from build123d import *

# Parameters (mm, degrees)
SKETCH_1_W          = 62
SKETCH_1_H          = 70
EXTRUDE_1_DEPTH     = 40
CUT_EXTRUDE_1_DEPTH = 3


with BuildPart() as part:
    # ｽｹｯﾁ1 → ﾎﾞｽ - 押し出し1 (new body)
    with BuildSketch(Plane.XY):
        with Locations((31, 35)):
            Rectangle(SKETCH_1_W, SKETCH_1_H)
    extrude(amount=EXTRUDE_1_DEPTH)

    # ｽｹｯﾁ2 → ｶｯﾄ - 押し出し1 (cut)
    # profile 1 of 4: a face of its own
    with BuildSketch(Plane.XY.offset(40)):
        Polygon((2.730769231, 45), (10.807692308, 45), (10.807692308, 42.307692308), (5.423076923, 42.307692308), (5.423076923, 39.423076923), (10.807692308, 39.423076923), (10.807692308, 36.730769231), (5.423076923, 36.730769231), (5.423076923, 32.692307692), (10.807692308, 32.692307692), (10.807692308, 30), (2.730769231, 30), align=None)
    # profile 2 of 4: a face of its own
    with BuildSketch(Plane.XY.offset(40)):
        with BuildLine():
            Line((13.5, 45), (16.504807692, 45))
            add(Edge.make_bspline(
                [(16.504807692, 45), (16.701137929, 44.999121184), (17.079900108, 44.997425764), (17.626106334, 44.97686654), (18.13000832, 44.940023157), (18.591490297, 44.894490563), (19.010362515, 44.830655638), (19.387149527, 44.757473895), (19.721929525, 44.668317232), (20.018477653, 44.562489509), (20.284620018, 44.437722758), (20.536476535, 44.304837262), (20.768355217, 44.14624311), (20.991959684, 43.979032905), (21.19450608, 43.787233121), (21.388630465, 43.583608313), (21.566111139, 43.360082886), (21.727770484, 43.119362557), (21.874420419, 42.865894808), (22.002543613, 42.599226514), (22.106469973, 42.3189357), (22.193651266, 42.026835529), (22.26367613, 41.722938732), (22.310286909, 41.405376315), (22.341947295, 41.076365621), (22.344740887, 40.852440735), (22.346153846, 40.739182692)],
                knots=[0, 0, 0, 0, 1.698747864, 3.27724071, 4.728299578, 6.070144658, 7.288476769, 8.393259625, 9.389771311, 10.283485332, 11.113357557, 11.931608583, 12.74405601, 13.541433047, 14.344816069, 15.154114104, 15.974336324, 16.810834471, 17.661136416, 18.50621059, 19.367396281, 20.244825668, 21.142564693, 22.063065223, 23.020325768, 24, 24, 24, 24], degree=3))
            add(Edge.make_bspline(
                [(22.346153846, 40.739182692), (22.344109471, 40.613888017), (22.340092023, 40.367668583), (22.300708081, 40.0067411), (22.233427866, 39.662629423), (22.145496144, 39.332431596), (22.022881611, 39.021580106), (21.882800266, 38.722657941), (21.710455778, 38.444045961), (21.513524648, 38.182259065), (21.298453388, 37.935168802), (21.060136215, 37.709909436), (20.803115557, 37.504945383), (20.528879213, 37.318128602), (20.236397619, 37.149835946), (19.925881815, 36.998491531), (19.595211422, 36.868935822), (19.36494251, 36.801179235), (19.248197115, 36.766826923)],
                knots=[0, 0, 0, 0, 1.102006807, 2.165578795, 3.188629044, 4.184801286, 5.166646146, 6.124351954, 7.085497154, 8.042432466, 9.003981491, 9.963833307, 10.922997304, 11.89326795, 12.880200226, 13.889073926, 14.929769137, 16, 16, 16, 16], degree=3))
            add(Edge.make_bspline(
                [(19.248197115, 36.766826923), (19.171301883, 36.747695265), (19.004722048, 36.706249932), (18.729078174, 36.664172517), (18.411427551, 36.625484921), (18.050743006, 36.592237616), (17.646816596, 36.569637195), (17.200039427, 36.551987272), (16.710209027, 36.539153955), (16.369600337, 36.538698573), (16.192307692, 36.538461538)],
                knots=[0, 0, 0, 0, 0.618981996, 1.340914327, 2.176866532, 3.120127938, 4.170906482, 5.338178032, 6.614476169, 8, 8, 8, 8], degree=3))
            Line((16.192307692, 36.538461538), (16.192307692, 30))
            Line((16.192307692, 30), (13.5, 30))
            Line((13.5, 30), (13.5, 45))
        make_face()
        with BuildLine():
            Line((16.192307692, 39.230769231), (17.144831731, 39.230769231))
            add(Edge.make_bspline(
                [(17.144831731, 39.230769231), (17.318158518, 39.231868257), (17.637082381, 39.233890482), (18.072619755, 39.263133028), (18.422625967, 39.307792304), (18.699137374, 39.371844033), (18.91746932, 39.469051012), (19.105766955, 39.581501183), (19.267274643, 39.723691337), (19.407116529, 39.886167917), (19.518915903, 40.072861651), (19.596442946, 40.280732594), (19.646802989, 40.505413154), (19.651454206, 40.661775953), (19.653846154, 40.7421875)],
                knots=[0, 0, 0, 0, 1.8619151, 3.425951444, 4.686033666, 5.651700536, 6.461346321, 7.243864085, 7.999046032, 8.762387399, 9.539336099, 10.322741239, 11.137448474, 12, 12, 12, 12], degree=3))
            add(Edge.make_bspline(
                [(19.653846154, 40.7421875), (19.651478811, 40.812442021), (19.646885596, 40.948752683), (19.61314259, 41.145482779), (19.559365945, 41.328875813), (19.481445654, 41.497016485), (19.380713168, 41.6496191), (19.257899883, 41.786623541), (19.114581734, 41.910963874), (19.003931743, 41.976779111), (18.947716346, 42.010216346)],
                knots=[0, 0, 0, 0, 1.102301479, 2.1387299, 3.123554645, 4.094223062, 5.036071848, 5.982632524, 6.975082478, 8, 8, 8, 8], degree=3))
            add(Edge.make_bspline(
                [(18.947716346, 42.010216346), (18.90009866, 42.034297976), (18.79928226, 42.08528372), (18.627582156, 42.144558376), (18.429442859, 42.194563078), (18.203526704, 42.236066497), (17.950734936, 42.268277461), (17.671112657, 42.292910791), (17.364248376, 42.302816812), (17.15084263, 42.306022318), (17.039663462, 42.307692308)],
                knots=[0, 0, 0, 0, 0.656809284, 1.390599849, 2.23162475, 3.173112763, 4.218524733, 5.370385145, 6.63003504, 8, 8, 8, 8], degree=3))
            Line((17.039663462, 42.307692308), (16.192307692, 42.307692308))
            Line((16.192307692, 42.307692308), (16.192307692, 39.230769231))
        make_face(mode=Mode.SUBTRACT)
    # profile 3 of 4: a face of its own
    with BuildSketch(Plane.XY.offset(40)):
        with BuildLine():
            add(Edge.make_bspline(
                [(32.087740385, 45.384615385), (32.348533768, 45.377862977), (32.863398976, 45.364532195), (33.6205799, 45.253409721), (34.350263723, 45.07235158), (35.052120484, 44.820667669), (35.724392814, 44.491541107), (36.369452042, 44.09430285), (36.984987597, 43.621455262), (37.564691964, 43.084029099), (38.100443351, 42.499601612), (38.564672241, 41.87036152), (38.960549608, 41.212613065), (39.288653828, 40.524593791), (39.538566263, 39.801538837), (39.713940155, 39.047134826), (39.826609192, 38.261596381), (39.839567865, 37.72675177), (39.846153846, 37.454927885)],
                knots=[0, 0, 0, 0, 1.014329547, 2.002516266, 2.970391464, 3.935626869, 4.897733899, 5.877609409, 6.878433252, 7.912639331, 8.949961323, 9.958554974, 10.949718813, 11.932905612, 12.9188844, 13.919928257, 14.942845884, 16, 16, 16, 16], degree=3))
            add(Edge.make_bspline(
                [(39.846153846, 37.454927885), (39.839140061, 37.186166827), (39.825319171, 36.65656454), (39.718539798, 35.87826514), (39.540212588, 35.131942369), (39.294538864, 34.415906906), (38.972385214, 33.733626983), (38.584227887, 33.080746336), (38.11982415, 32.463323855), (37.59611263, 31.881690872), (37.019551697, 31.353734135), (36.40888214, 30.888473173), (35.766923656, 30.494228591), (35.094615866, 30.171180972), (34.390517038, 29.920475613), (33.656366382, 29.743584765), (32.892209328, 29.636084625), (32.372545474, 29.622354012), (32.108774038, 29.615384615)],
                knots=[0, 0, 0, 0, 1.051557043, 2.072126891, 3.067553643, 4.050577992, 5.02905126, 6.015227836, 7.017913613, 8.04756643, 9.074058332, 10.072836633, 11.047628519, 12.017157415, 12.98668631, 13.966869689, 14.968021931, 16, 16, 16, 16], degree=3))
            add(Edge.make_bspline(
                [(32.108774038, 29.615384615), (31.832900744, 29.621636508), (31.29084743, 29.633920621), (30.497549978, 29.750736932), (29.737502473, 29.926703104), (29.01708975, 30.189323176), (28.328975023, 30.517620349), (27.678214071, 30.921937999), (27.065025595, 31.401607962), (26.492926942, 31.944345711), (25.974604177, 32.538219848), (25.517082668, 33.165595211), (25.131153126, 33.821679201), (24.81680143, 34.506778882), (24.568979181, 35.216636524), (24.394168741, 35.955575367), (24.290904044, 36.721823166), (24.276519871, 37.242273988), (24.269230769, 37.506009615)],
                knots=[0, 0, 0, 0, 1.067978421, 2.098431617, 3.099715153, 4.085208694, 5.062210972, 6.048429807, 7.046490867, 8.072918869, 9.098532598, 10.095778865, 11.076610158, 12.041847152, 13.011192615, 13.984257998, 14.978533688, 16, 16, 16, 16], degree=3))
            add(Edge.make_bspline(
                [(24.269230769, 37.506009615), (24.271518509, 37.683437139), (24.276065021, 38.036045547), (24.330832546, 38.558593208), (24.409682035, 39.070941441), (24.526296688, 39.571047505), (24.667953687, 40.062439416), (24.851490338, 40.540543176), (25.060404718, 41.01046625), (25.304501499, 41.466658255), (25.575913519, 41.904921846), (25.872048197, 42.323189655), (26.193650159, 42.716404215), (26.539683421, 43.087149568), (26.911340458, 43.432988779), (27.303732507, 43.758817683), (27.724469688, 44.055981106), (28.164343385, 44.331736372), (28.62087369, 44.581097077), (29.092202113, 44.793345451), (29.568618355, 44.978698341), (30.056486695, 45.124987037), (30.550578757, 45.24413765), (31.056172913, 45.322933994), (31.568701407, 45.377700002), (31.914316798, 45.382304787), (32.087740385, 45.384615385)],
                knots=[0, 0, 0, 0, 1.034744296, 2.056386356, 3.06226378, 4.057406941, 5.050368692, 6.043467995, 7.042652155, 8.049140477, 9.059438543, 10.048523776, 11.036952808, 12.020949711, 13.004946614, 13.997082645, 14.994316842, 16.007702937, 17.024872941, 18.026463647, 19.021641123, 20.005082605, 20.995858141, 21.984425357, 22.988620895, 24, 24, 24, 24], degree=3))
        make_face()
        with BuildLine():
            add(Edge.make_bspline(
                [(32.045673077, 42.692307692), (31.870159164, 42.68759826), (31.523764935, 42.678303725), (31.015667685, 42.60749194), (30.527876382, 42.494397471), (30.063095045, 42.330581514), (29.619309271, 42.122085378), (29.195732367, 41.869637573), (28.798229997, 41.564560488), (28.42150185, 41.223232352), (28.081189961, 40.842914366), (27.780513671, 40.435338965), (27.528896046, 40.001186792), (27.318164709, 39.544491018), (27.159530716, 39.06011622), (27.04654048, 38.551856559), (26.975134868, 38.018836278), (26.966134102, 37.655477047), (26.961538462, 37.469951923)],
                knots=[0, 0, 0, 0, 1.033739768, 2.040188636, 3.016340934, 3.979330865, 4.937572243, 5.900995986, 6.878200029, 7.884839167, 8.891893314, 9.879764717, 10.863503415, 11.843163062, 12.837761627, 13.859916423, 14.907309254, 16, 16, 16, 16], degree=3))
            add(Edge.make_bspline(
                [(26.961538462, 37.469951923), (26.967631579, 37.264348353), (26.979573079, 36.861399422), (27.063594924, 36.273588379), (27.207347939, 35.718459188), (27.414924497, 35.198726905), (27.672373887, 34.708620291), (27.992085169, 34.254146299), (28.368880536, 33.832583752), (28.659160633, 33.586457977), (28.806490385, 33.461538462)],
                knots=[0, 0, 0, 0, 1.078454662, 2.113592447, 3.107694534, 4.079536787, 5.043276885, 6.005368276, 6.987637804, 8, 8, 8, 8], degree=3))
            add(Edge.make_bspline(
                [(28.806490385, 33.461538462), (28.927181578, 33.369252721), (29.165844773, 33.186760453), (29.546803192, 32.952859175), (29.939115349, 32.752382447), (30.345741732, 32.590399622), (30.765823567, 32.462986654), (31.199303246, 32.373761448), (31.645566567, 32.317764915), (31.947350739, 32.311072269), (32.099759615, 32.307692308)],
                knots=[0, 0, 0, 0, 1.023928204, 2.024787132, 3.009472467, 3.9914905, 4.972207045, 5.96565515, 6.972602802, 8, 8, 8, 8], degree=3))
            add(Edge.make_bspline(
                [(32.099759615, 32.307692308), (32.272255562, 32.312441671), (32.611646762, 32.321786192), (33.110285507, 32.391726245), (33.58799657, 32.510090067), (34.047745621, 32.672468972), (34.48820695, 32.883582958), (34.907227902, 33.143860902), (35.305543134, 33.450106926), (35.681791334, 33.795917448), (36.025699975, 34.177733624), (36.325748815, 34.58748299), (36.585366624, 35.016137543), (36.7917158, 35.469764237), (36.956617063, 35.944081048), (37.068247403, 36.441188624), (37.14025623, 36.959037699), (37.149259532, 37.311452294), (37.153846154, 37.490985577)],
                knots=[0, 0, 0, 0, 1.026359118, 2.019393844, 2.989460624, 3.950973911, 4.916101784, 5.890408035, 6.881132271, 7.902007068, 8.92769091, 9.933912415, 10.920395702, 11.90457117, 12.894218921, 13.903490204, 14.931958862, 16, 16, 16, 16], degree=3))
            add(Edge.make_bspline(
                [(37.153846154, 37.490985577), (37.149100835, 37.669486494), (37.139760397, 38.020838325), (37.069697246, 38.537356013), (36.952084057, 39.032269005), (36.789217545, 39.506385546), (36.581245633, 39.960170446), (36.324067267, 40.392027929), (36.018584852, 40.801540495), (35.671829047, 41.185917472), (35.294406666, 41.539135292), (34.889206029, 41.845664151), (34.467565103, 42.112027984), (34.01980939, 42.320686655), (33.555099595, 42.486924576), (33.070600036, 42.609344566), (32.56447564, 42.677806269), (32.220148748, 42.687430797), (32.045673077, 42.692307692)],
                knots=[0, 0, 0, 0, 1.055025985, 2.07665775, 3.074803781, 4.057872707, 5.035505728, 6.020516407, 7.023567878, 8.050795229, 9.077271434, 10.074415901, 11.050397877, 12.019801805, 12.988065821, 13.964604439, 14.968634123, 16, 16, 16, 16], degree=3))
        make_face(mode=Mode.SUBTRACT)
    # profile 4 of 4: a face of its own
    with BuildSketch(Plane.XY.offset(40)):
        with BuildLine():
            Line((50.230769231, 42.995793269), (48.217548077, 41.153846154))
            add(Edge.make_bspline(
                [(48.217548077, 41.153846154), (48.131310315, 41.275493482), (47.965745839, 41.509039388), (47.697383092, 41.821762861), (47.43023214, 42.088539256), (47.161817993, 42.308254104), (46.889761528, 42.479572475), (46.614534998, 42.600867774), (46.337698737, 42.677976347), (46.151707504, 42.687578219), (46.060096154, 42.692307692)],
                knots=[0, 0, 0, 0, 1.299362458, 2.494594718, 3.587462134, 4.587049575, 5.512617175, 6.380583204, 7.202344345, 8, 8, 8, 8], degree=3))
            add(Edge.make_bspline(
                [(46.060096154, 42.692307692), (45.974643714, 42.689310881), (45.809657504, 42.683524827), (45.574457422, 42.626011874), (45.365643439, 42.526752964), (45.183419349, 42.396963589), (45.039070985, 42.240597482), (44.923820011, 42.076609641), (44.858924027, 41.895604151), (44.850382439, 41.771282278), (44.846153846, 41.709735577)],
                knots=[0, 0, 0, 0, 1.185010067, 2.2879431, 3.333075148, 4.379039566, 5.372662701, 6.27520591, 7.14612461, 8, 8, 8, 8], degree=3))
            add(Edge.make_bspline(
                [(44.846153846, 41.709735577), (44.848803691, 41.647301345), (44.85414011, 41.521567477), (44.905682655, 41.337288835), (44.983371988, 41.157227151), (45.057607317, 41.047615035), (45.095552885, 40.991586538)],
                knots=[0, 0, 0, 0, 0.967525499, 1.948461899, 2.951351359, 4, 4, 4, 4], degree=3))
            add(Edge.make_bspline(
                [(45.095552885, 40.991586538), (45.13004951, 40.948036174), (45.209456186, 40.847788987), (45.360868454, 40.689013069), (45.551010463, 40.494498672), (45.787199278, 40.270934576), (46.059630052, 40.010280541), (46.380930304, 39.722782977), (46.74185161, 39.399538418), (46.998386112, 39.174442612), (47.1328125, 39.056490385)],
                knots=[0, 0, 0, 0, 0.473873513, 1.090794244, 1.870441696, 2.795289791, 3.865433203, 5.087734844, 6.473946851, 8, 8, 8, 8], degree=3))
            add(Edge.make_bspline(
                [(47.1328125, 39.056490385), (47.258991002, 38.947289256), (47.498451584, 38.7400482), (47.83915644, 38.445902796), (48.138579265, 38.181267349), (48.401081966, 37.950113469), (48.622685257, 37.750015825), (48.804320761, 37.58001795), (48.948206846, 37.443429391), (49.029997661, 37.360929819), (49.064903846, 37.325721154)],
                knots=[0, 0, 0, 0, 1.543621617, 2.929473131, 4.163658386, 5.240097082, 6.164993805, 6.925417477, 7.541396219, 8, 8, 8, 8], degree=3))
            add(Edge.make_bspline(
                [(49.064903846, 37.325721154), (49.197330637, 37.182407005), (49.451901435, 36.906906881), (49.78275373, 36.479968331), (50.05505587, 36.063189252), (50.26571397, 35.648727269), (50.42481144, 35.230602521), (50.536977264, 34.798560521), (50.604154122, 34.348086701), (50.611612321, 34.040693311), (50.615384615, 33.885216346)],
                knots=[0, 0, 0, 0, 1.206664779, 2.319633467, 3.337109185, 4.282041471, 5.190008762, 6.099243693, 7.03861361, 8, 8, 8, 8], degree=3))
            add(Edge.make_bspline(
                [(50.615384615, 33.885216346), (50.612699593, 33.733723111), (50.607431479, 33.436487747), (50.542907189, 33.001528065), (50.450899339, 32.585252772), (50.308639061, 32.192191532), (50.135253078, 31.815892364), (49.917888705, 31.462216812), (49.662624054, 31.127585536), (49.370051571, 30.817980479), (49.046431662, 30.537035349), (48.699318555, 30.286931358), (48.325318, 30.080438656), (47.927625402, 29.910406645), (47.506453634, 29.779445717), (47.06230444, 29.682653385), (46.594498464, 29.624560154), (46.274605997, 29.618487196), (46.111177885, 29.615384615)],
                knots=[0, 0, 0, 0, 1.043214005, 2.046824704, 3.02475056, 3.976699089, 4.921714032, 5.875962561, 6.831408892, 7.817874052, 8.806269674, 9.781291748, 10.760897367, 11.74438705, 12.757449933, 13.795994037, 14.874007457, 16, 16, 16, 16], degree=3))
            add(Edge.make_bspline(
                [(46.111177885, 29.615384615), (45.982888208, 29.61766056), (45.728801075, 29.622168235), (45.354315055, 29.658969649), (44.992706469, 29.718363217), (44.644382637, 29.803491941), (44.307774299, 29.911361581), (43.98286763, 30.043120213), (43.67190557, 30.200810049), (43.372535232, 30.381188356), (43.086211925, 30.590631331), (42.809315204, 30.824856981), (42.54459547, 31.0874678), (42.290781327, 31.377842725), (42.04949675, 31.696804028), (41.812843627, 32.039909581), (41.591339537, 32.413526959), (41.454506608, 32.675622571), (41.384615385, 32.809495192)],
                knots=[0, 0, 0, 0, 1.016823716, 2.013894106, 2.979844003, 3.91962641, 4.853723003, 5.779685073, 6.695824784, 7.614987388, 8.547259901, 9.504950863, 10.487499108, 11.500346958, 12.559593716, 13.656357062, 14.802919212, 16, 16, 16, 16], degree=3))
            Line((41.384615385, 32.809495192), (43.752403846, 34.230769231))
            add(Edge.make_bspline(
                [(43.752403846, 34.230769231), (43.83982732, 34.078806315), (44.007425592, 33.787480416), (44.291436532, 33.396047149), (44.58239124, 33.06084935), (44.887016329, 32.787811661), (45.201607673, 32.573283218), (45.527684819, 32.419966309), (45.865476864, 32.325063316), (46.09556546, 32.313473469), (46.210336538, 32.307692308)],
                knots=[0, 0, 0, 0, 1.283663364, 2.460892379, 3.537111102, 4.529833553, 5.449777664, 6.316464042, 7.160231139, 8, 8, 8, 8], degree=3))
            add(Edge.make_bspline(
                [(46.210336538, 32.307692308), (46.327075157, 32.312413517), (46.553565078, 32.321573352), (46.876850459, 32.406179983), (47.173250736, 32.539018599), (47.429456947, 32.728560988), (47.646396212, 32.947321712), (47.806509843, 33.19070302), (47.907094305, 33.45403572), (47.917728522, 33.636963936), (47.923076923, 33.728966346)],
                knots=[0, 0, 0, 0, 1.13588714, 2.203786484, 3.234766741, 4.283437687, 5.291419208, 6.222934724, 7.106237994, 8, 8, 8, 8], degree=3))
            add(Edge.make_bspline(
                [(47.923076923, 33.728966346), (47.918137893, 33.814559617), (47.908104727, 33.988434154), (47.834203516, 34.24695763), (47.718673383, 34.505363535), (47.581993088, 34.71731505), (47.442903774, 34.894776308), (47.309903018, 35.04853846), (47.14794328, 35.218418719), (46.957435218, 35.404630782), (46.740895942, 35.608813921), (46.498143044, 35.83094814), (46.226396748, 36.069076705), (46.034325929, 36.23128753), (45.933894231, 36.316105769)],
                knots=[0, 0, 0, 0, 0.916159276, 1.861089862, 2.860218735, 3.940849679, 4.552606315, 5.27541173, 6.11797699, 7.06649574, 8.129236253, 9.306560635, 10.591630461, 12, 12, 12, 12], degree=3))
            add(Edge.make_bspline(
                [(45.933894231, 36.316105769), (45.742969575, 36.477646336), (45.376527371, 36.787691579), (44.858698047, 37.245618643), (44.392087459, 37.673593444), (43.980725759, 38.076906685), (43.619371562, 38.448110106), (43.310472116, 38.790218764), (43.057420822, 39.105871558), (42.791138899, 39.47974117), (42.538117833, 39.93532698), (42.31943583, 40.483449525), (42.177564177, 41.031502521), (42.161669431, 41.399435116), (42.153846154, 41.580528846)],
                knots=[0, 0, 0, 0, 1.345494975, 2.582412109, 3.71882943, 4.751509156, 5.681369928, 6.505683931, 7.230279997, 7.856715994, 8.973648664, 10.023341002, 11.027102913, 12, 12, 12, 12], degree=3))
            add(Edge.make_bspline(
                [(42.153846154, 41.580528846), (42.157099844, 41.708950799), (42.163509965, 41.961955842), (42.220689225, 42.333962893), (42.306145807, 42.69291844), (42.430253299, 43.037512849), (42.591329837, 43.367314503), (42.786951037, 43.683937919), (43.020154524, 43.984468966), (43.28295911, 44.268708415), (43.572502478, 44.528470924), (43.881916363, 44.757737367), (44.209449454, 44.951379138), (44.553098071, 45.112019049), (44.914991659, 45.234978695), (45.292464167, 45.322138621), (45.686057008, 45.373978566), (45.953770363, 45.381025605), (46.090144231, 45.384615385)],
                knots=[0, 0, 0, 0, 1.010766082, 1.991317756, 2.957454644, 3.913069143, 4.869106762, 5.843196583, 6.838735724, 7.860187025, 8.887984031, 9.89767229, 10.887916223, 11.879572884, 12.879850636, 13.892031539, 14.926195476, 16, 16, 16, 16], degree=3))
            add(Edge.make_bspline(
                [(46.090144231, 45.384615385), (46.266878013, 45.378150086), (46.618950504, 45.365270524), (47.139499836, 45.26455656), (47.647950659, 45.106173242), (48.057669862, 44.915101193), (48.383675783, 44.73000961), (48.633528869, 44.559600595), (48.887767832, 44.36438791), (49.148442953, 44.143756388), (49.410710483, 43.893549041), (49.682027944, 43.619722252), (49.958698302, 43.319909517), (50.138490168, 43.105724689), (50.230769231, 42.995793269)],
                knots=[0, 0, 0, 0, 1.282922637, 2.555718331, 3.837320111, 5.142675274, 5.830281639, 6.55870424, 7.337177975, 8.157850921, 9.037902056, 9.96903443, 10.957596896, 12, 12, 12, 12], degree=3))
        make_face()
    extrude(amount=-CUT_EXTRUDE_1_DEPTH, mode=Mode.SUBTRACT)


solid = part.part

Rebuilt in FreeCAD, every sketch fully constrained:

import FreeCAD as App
import Part
import Sketcher
from FreeCAD import Vector


def add_polygon(sketch, points):
    """Adds a closed chain of lines whose ends are joined by coincident constraints."""
    first, n = sketch.GeometryCount, len(points)
    for a, b in zip(points, points[1:] + points[:1]):
        sketch.addGeometry(Part.LineSegment(App.Vector(*a, 0), App.Vector(*b, 0)), False)
    for i in range(n):
        sketch.addConstraint(Sketcher.Constraint("Coincident", first + i, 2, first + (i + 1) % n, 1))

doc = App.newDocument("Part")
params = doc.addObject("Spreadsheet::Sheet", "Params")
for row, (alias, value) in enumerate([
    ("sketch1_width", "62 mm"),
    ("sketch1_height", "70 mm"),
    ("pad1_length", "40 mm"),
    ("sketch2_height", "15 mm"),
    ("sketch2_height2", "15 mm"),
    ("pocket1_length", "3 mm"),
], start=1):
    params.set(f"A{row}", alias)
    params.set(f"B{row}", "=" + value)
    params.setAlias(f"B{row}", alias)

body = doc.addObject("PartDesign::Body", "Body")

# Sketch on XY plane
sketch1 = body.newObject("Sketcher::SketchObject", "Sketch")
sketch1.AttachmentSupport = (doc.getObject("XY_Plane"), [""])
sketch1.MapMode = "FlatFace"
add_polygon(sketch1, [(0, 70), (0, 0), (62, 0), (62, 70)])  # lines 0-3
sketch1.addConstraint([
    Sketcher.Constraint("Vertical", 0),
    Sketcher.Constraint("Horizontal", 1),
    Sketcher.Constraint("Vertical", 2),
    Sketcher.Constraint("Horizontal", 3),
    Sketcher.Constraint("Coincident", 0, 2, -1, 1),
    Sketcher.Constraint("DistanceX", 1, 1, 1, 2, 62.0),
    Sketcher.Constraint("DistanceY", 0, 2, 0, 1, 70.0),
])
sketch1.setExpression("Constraints[9]", "Params.sketch1_width")
sketch1.setExpression("Constraints[10]", "Params.sketch1_height")
pad1 = body.newObject("PartDesign::Pad", "Pad")
pad1.Profile = sketch1
pad1.setExpression("Length", "Params.pad1_length")

# Sketch on XY plane
sketch2 = body.newObject("Sketcher::SketchObject", "Sketch001")
sketch2.AttachmentSupport = (doc.getObject("XY_Plane"), [""])
sketch2.MapMode = "FlatFace"
sketch2.AttachmentOffset = App.Placement(Vector(0, 0, 40), App.Rotation())
add_polygon(sketch2, [(10.807692, 45), (2.730769, 45), (2.730769, 30), (10.807692, 30), (10.807692, 32.692308), (5.423077, 32.692308), (5.423077, 36.730769), (10.807692, 36.730769), (10.807692, 39.423077), (5.423077, 39.423077), (5.423077, 42.307692), (10.807692, 42.307692)])  # lines 0-11
sketch2.addGeometry(Part.LineSegment(Vector(16.504808, 45, 0), Vector(13.5, 45, 0)), False)  # 12
sketch2.addGeometry(Part.LineSegment(Vector(13.5, 45, 0), Vector(13.5, 30, 0)), False)  # 13
sketch2.addGeometry(Part.LineSegment(Vector(13.5, 30, 0), Vector(16.192308, 30, 0)), False)  # 14
sketch2.addGeometry(Part.LineSegment(Vector(16.192308, 30, 0), Vector(16.192308, 36.538462, 0)), False)  # 15
sketch2.addGeometry(Part.BSplineCurve([Vector(19.248197, 36.766827, 0), Vector(19.171302, 36.747695, 0), Vector(19.004722, 36.70625, 0), Vector(18.729078, 36.664173, 0), Vector(18.411428, 36.625485, 0), Vector(18.050743, 36.592238, 0), Vector(17.646817, 36.569637, 0), Vector(17.200039, 36.551987, 0), Vector(16.710209, 36.539154, 0), Vector(16.3696, 36.538699, 0), Vector(16.192308, 36.538462, 0)], [4, 1, 1, 1, 1, 1, 1, 1, 4], [0, 0.618981996, 1.340914327, 2.176866532, 3.120127938, 4.170906482, 5.338178032, 6.614476169, 8], False, 3, [1, 1, 1, 1, 1, 1, 1, 1, 1, 1, 1], False), False)  # 16
sketch2.addGeometry(Part.BSplineCurve([Vector(22.346154, 40.739183, 0), Vector(22.344109, 40.613888, 0), Vector(22.340092, 40.367669, 0), Vector(22.300708, 40.006741, 0), Vector(22.233428, 39.662629, 0), Vector(22.145496, 39.332432, 0), Vector(22.022882, 39.02158, 0), Vector(21.8828, 38.722658, 0), Vector(21.710456, 38.444046, 0), Vector(21.513525, 38.182259, 0), Vector(21.298453, 37.935169, 0), Vector(21.060136, 37.709909, 0), Vector(20.803116, 37.504945, 0), Vector(20.528879, 37.318129, 0), Vector(20.236398, 37.149836, 0), Vector(19.925882, 36.998492, 0), Vector(19.595211, 36.868936, 0), Vector(19.364943, 36.801179, 0), Vector(19.248197, 36.766827, 0)], [4, 1, 1, 1, 1, 1, 1, 1, 1, 1, 1, 1, 1, 1, 1, 1, 4], [0, 1.102006807, 2.165578795, 3.188629044, 4.184801286, 5.166646146, 6.124351954, 7.085497154, 8.042432466, 9.003981491, 9.963833307, 10.922997304, 11.89326795, 12.880200226, 13.889073926, 14.929769137, 16], False, 3, [1, 1, 1, 1, 1, 1, 1, 1, 1, 1, 1, 1, 1, 1, 1, 1, 1, 1, 1], False), False)  # 17
sketch2.addGeometry(Part.BSplineCurve([Vector(16.504808, 45, 0), Vector(16.701138, 44.999121, 0), Vector(17.0799, 44.997426, 0), Vector(17.626106, 44.976867, 0), Vector(18.130008, 44.940023, 0), Vector(18.59149, 44.894491, 0), Vector(19.010363, 44.830656, 0), Vector(19.38715, 44.757474, 0), Vector(19.72193, 44.668317, 0), Vector(20.018478, 44.56249, 0), Vector(20.28462, 44.437723, 0), Vector(20.536477, 44.304837, 0), Vector(20.768355, 44.146243, 0), Vector(20.99196, 43.979033, 0), Vector(21.194506, 43.787233, 0), Vector(21.38863, 43.583608, 0), Vector(21.566111, 43.360083, 0), Vector(21.72777, 43.119363, 0), Vector(21.87442, 42.865895, 0), Vector(22.002544, 42.599227, 0), Vector(22.10647, 42.318936, 0), Vector(22.193651, 42.026836, 0), Vector(22.263676, 41.722939, 0), Vector(22.310287, 41.405376, 0), Vector(22.341947, 41.076366, 0), Vector(22.344741, 40.852441, 0), Vector(22.346154, 40.739183, 0)], [4, 1, 1, 1, 1, 1, 1, 1, 1, 1, 1, 1, 1, 1, 1, 1, 1, 1, 1, 1, 1, 1, 1, 1, 4], [0, 1.698747864, 3.27724071, 4.728299578, 6.070144658, 7.288476769, 8.393259625, 9.389771311, 10.283485332, 11.113357557, 11.931608583, 12.74405601, 13.541433047, 14.344816069, 15.154114104, 15.974336324, 16.810834471, 17.661136416, 18.50621059, 19.367396281, 20.244825668, 21.142564693, 22.063065223, 23.020325768, 24], False, 3, [1, 1, 1, 1, 1, 1, 1, 1, 1, 1, 1, 1, 1, 1, 1, 1, 1, 1, 1, 1, 1, 1, 1, 1, 1, 1, 1], False), False)  # 18
sketch2.addGeometry(Part.LineSegment(Vector(16.192308, 39.230769, 0), Vector(16.192308, 42.307692, 0)), False)  # 19
sketch2.addGeometry(Part.LineSegment(Vector(16.192308, 42.307692, 0), Vector(17.039663, 42.307692, 0)), False)  # 20
sketch2.addGeometry(Part.BSplineCurve([Vector(18.947716, 42.010216, 0), Vector(18.900099, 42.034298, 0), Vector(18.799282, 42.085284, 0), Vector(18.627582, 42.144558, 0), Vector(18.429443, 42.194563, 0), Vector(18.203527, 42.236066, 0), Vector(17.950735, 42.268277, 0), Vector(17.671113, 42.292911, 0), Vector(17.364248, 42.302817, 0), Vector(17.150843, 42.306022, 0), Vector(17.039663, 42.307692, 0)], [4, 1, 1, 1, 1, 1, 1, 1, 4], [0, 0.656809284, 1.390599849, 2.23162475, 3.173112763, 4.218524733, 5.370385145, 6.63003504, 8], False, 3, [1, 1, 1, 1, 1, 1, 1, 1, 1, 1, 1], False), False)  # 21
sketch2.addGeometry(Part.BSplineCurve([Vector(19.653846, 40.742188, 0), Vector(19.651479, 40.812442, 0), Vector(19.646886, 40.948753, 0), Vector(19.613143, 41.145483, 0), Vector(19.559366, 41.328876, 0), Vector(19.481446, 41.497016, 0), Vector(19.380713, 41.649619, 0), Vector(19.2579, 41.786624, 0), Vector(19.114582, 41.910964, 0), Vector(19.003932, 41.976779, 0), Vector(18.947716, 42.010216, 0)], [4, 1, 1, 1, 1, 1, 1, 1, 4], [0, 1.102301479, 2.1387299, 3.123554645, 4.094223062, 5.036071848, 5.982632524, 6.975082478, 8], False, 3, [1, 1, 1, 1, 1, 1, 1, 1, 1, 1, 1], False), False)  # 22
sketch2.addGeometry(Part.BSplineCurve([Vector(17.144832, 39.230769, 0), Vector(17.318159, 39.231868, 0), Vector(17.637082, 39.23389, 0), Vector(18.07262, 39.263133, 0), Vector(18.422626, 39.307792, 0), Vector(18.699137, 39.371844, 0), Vector(18.917469, 39.469051, 0), Vector(19.105767, 39.581501, 0), Vector(19.267275, 39.723691, 0), Vector(19.407117, 39.886168, 0), Vector(19.518916, 40.072862, 0), Vector(19.596443, 40.280733, 0), Vector(19.646803, 40.505413, 0), Vector(19.651454, 40.661776, 0), Vector(19.653846, 40.742188, 0)], [4, 1, 1, 1, 1, 1, 1, 1, 1, 1, 1, 1, 4], [0, 1.8619151, 3.425951444, 4.686033666, 5.651700536, 6.461346321, 7.243864085, 7.999046032, 8.762387399, 9.539336099, 10.322741239, 11.137448474, 12], False, 3, [1, 1, 1, 1, 1, 1, 1, 1, 1, 1, 1, 1, 1, 1, 1], False), False)  # 23
sketch2.addGeometry(Part.LineSegment(Vector(17.144832, 39.230769, 0), Vector(16.192308, 39.230769, 0)), False)  # 24
sketch2.addGeometry(Part.BSplineCurve([Vector(32.08774, 45.384615, 0), Vector(32.348534, 45.377863, 0), Vector(32.863399, 45.364532, 0), Vector(33.62058, 45.25341, 0), Vector(34.350264, 45.072352, 0), Vector(35.05212, 44.820668, 0), Vector(35.724393, 44.491541, 0), Vector(36.369452, 44.094303, 0), Vector(36.984988, 43.621455, 0), Vector(37.564692, 43.084029, 0), Vector(38.100443, 42.499602, 0), Vector(38.564672, 41.870362, 0), Vector(38.96055, 41.212613, 0), Vector(39.288654, 40.524594, 0), Vector(39.538566, 39.801539, 0), Vector(39.71394, 39.047135, 0), Vector(39.826609, 38.261596, 0), Vector(39.839568, 37.726752, 0), Vector(39.846154, 37.454928, 0)], [4, 1, 1, 1, 1, 1, 1, 1, 1, 1, 1, 1, 1, 1, 1, 1, 4], [0, 1.014329547, 2.002516266, 2.970391464, 3.935626869, 4.897733899, 5.877609409, 6.878433252, 7.912639331, 8.949961323, 9.958554974, 10.949718813, 11.932905612, 12.9188844, 13.919928257, 14.942845884, 16], False, 3, [1, 1, 1, 1, 1, 1, 1, 1, 1, 1, 1, 1, 1, 1, 1, 1, 1, 1, 1], False), False)  # 25
sketch2.addGeometry(Part.BSplineCurve([Vector(24.269231, 37.50601, 0), Vector(24.271519, 37.683437, 0), Vector(24.276065, 38.036046, 0), Vector(24.330833, 38.558593, 0), Vector(24.409682, 39.070941, 0), Vector(24.526297, 39.571048, 0), Vector(24.667954, 40.062439, 0), Vector(24.85149, 40.540543, 0), Vector(25.060405, 41.010466, 0), Vector(25.304501, 41.466658, 0), Vector(25.575914, 41.904922, 0), Vector(25.872048, 42.32319, 0), Vector(26.19365, 42.716404, 0), Vector(26.539683, 43.08715, 0), Vector(26.91134, 43.432989, 0), Vector(27.303733, 43.758818, 0), Vector(27.72447, 44.055981, 0), Vector(28.164343, 44.331736, 0), Vector(28.620874, 44.581097, 0), Vector(29.092202, 44.793345, 0), Vector(29.568618, 44.978698, 0), Vector(30.056487, 45.124987, 0), Vector(30.550579, 45.244138, 0), Vector(31.056173, 45.322934, 0), Vector(31.568701, 45.3777, 0), Vector(31.914317, 45.382305, 0), Vector(32.08774, 45.384615, 0)], [4, 1, 1, 1, 1, 1, 1, 1, 1, 1, 1, 1, 1, 1, 1, 1, 1, 1, 1, 1, 1, 1, 1, 1, 4], [0, 1.034744296, 2.056386356, 3.06226378, 4.057406941, 5.050368692, 6.043467995, 7.042652155, 8.049140477, 9.059438543, 10.048523776, 11.036952808, 12.020949711, 13.004946614, 13.997082645, 14.994316842, 16.007702937, 17.024872941, 18.026463647, 19.021641123, 20.005082605, 20.995858141, 21.984425357, 22.988620895, 24], False, 3, [1, 1, 1, 1, 1, 1, 1, 1, 1, 1, 1, 1, 1, 1, 1, 1, 1, 1, 1, 1, 1, 1, 1, 1, 1, 1, 1], False), False)  # 26
sketch2.addGeometry(Part.BSplineCurve([Vector(32.108774, 29.615385, 0), Vector(31.832901, 29.621637, 0), Vector(31.290847, 29.633921, 0), Vector(30.49755, 29.750737, 0), Vector(29.737502, 29.926703, 0), Vector(29.01709, 30.189323, 0), Vector(28.328975, 30.51762, 0), Vector(27.678214, 30.921938, 0), Vector(27.065026, 31.401608, 0), Vector(26.492927, 31.944346, 0), Vector(25.974604, 32.53822, 0), Vector(25.517083, 33.165595, 0), Vector(25.131153, 33.821679, 0), Vector(24.816801, 34.506779, 0), Vector(24.568979, 35.216637, 0), Vector(24.394169, 35.955575, 0), Vector(24.290904, 36.721823, 0), Vector(24.27652, 37.242274, 0), Vector(24.269231, 37.50601, 0)], [4, 1, 1, 1, 1, 1, 1, 1, 1, 1, 1, 1, 1, 1, 1, 1, 4], [0, 1.067978421, 2.098431617, 3.099715153, 4.085208694, 5.062210972, 6.048429807, 7.046490867, 8.072918869, 9.098532598, 10.095778865, 11.076610158, 12.041847152, 13.011192615, 13.984257998, 14.978533688, 16], False, 3, [1, 1, 1, 1, 1, 1, 1, 1, 1, 1, 1, 1, 1, 1, 1, 1, 1, 1, 1], False), False)  # 27
sketch2.addGeometry(Part.BSplineCurve([Vector(39.846154, 37.454928, 0), Vector(39.83914, 37.186167, 0), Vector(39.825319, 36.656565, 0), Vector(39.71854, 35.878265, 0), Vector(39.540213, 35.131942, 0), Vector(39.294539, 34.415907, 0), Vector(38.972385, 33.733627, 0), Vector(38.584228, 33.080746, 0), Vector(38.119824, 32.463324, 0), Vector(37.596113, 31.881691, 0), Vector(37.019552, 31.353734, 0), Vector(36.408882, 30.888473, 0), Vector(35.766924, 30.494229, 0), Vector(35.094616, 30.171181, 0), Vector(34.390517, 29.920476, 0), Vector(33.656366, 29.743585, 0), Vector(32.892209, 29.636085, 0), Vector(32.372545, 29.622354, 0), Vector(32.108774, 29.615385, 0)], [4, 1, 1, 1, 1, 1, 1, 1, 1, 1, 1, 1, 1, 1, 1, 1, 4], [0, 1.051557043, 2.072126891, 3.067553643, 4.050577992, 5.02905126, 6.015227836, 7.017913613, 8.04756643, 9.074058332, 10.072836633, 11.047628519, 12.017157415, 12.98668631, 13.966869689, 14.968021931, 16], False, 3, [1, 1, 1, 1, 1, 1, 1, 1, 1, 1, 1, 1, 1, 1, 1, 1, 1, 1, 1], False), False)  # 28
sketch2.addGeometry(Part.BSplineCurve([Vector(37.153846, 37.490986, 0), Vector(37.149101, 37.669486, 0), Vector(37.13976, 38.020838, 0), Vector(37.069697, 38.537356, 0), Vector(36.952084, 39.032269, 0), Vector(36.789218, 39.506386, 0), Vector(36.581246, 39.96017, 0), Vector(36.324067, 40.392028, 0), Vector(36.018585, 40.80154, 0), Vector(35.671829, 41.185917, 0), Vector(35.294407, 41.539135, 0), Vector(34.889206, 41.845664, 0), Vector(34.467565, 42.112028, 0), Vector(34.019809, 42.320687, 0), Vector(33.5551, 42.486925, 0), Vector(33.0706, 42.609345, 0), Vector(32.564476, 42.677806, 0), Vector(32.220149, 42.687431, 0), Vector(32.045673, 42.692308, 0)], [4, 1, 1, 1, 1, 1, 1, 1, 1, 1, 1, 1, 1, 1, 1, 1, 4], [0, 1.055025985, 2.07665775, 3.074803781, 4.057872707, 5.035505728, 6.020516407, 7.023567878, 8.050795229, 9.077271434, 10.074415901, 11.050397877, 12.019801805, 12.988065821, 13.964604439, 14.968634123, 16], False, 3, [1, 1, 1, 1, 1, 1, 1, 1, 1, 1, 1, 1, 1, 1, 1, 1, 1, 1, 1], False), False)  # 29
sketch2.addGeometry(Part.BSplineCurve([Vector(32.09976, 32.307692, 0), Vector(32.272256, 32.312442, 0), Vector(32.611647, 32.321786, 0), Vector(33.110286, 32.391726, 0), Vector(33.587997, 32.51009, 0), Vector(34.047746, 32.672469, 0), Vector(34.488207, 32.883583, 0), Vector(34.907228, 33.143861, 0), Vector(35.305543, 33.450107, 0), Vector(35.681791, 33.795917, 0), Vector(36.0257, 34.177734, 0), Vector(36.325749, 34.587483, 0), Vector(36.585367, 35.016138, 0), Vector(36.791716, 35.469764, 0), Vector(36.956617, 35.944081, 0), Vector(37.068247, 36.441189, 0), Vector(37.140256, 36.959038, 0), Vector(37.14926, 37.311452, 0), Vector(37.153846, 37.490986, 0)], [4, 1, 1, 1, 1, 1, 1, 1, 1, 1, 1, 1, 1, 1, 1, 1, 4], [0, 1.026359118, 2.019393844, 2.989460624, 3.950973911, 4.916101784, 5.890408035, 6.881132271, 7.902007068, 8.92769091, 9.933912415, 10.920395702, 11.90457117, 12.894218921, 13.903490204, 14.931958862, 16], False, 3, [1, 1, 1, 1, 1, 1, 1, 1, 1, 1, 1, 1, 1, 1, 1, 1, 1, 1, 1], False), False)  # 30
sketch2.addGeometry(Part.BSplineCurve([Vector(28.80649, 33.461538, 0), Vector(28.927182, 33.369253, 0), Vector(29.165845, 33.18676, 0), Vector(29.546803, 32.952859, 0), Vector(29.939115, 32.752382, 0), Vector(30.345742, 32.5904, 0), Vector(30.765824, 32.462987, 0), Vector(31.199303, 32.373761, 0), Vector(31.645567, 32.317765, 0), Vector(31.947351, 32.311072, 0), Vector(32.09976, 32.307692, 0)], [4, 1, 1, 1, 1, 1, 1, 1, 4], [0, 1.023928204, 2.024787132, 3.009472467, 3.9914905, 4.972207045, 5.96565515, 6.972602802, 8], False, 3, [1, 1, 1, 1, 1, 1, 1, 1, 1, 1, 1], False), False)  # 31
sketch2.addGeometry(Part.BSplineCurve([Vector(26.961538, 37.469952, 0), Vector(26.967632, 37.264348, 0), Vector(26.979573, 36.861399, 0), Vector(27.063595, 36.273588, 0), Vector(27.207348, 35.718459, 0), Vector(27.414924, 35.198727, 0), Vector(27.672374, 34.70862, 0), Vector(27.992085, 34.254146, 0), Vector(28.368881, 33.832584, 0), Vector(28.659161, 33.586458, 0), Vector(28.80649, 33.461538, 0)], [4, 1, 1, 1, 1, 1, 1, 1, 4], [0, 1.078454662, 2.113592447, 3.107694534, 4.079536787, 5.043276885, 6.005368276, 6.987637804, 8], False, 3, [1, 1, 1, 1, 1, 1, 1, 1, 1, 1, 1], False), False)  # 32
sketch2.addGeometry(Part.BSplineCurve([Vector(32.045673, 42.692308, 0), Vector(31.870159, 42.687598, 0), Vector(31.523765, 42.678304, 0), Vector(31.015668, 42.607492, 0), Vector(30.527876, 42.494397, 0), Vector(30.063095, 42.330582, 0), Vector(29.619309, 42.122085, 0), Vector(29.195732, 41.869638, 0), Vector(28.79823, 41.56456, 0), Vector(28.421502, 41.223232, 0), Vector(28.08119, 40.842914, 0), Vector(27.780514, 40.435339, 0), Vector(27.528896, 40.001187, 0), Vector(27.318165, 39.544491, 0), Vector(27.159531, 39.060116, 0), Vector(27.04654, 38.551857, 0), Vector(26.975135, 38.018836, 0), Vector(26.966134, 37.655477, 0), Vector(26.961538, 37.469952, 0)], [4, 1, 1, 1, 1, 1, 1, 1, 1, 1, 1, 1, 1, 1, 1, 1, 4], [0, 1.033739768, 2.040188636, 3.016340934, 3.979330865, 4.937572243, 5.900995986, 6.878200029, 7.884839167, 8.891893314, 9.879764717, 10.863503415, 11.843163062, 12.837761627, 13.859916423, 14.907309254, 16], False, 3, [1, 1, 1, 1, 1, 1, 1, 1, 1, 1, 1, 1, 1, 1, 1, 1, 1, 1, 1], False), False)  # 33
sketch2.addGeometry(Part.LineSegment(Vector(48.217548, 41.153846, 0), Vector(50.230769, 42.995793, 0)), False)  # 34
sketch2.addGeometry(Part.BSplineCurve([Vector(46.090144, 45.384615, 0), Vector(46.266878, 45.37815, 0), Vector(46.618951, 45.365271, 0), Vector(47.1395, 45.264557, 0), Vector(47.647951, 45.106173, 0), Vector(48.05767, 44.915101, 0), Vector(48.383676, 44.73001, 0), Vector(48.633529, 44.559601, 0), Vector(48.887768, 44.364388, 0), Vector(49.148443, 44.143756, 0), Vector(49.41071, 43.893549, 0), Vector(49.682028, 43.619722, 0), Vector(49.958698, 43.31991, 0), Vector(50.13849, 43.105725, 0), Vector(50.230769, 42.995793, 0)], [4, 1, 1, 1, 1, 1, 1, 1, 1, 1, 1, 1, 4], [0, 1.282922637, 2.555718331, 3.837320111, 5.142675274, 5.830281639, 6.55870424, 7.337177975, 8.157850921, 9.037902056, 9.96903443, 10.957596896, 12], False, 3, [1, 1, 1, 1, 1, 1, 1, 1, 1, 1, 1, 1, 1, 1, 1], False), False)  # 35
sketch2.addGeometry(Part.BSplineCurve([Vector(42.153846, 41.580529, 0), Vector(42.1571, 41.708951, 0), Vector(42.16351, 41.961956, 0), Vector(42.220689, 42.333963, 0), Vector(42.306146, 42.692918, 0), Vector(42.430253, 43.037513, 0), Vector(42.59133, 43.367315, 0), Vector(42.786951, 43.683938, 0), Vector(43.020155, 43.984469, 0), Vector(43.282959, 44.268708, 0), Vector(43.572502, 44.528471, 0), Vector(43.881916, 44.757737, 0), Vector(44.209449, 44.951379, 0), Vector(44.553098, 45.112019, 0), Vector(44.914992, 45.234979, 0), Vector(45.292464, 45.322139, 0), Vector(45.686057, 45.373979, 0), Vector(45.95377, 45.381026, 0), Vector(46.090144, 45.384615, 0)], [4, 1, 1, 1, 1, 1, 1, 1, 1, 1, 1, 1, 1, 1, 1, 1, 4], [0, 1.010766082, 1.991317756, 2.957454644, 3.913069143, 4.869106762, 5.843196583, 6.838735724, 7.860187025, 8.887984031, 9.89767229, 10.887916223, 11.879572884, 12.879850636, 13.892031539, 14.926195476, 16], False, 3, [1, 1, 1, 1, 1, 1, 1, 1, 1, 1, 1, 1, 1, 1, 1, 1, 1, 1, 1], False), False)  # 36
sketch2.addGeometry(Part.BSplineCurve([Vector(45.933894, 36.316106, 0), Vector(45.74297, 36.477646, 0), Vector(45.376527, 36.787692, 0), Vector(44.858698, 37.245619, 0), Vector(44.392087, 37.673593, 0), Vector(43.980726, 38.076907, 0), Vector(43.619372, 38.44811, 0), Vector(43.310472, 38.790219, 0), Vector(43.057421, 39.105872, 0), Vector(42.791139, 39.479741, 0), Vector(42.538118, 39.935327, 0), Vector(42.319436, 40.48345, 0), Vector(42.177564, 41.031503, 0), Vector(42.161669, 41.399435, 0), Vector(42.153846, 41.580529, 0)], [4, 1, 1, 1, 1, 1, 1, 1, 1, 1, 1, 1, 4], [0, 1.345494975, 2.582412109, 3.71882943, 4.751509156, 5.681369928, 6.505683931, 7.230279997, 7.856715994, 8.973648664, 10.023341002, 11.027102913, 12], False, 3, [1, 1, 1, 1, 1, 1, 1, 1, 1, 1, 1, 1, 1, 1, 1], False), False)  # 37
sketch2.addGeometry(Part.BSplineCurve([Vector(47.923077, 33.728966, 0), Vector(47.918138, 33.81456, 0), Vector(47.908105, 33.988434, 0), Vector(47.834204, 34.246958, 0), Vector(47.718673, 34.505364, 0), Vector(47.581993, 34.717315, 0), Vector(47.442904, 34.894776, 0), Vector(47.309903, 35.048538, 0), Vector(47.147943, 35.218419, 0), Vector(46.957435, 35.404631, 0), Vector(46.740896, 35.608814, 0), Vector(46.498143, 35.830948, 0), Vector(46.226397, 36.069077, 0), Vector(46.034326, 36.231288, 0), Vector(45.933894, 36.316106, 0)], [4, 1, 1, 1, 1, 1, 1, 1, 1, 1, 1, 1, 4], [0, 0.916159276, 1.861089862, 2.860218735, 3.940849679, 4.552606315, 5.27541173, 6.11797699, 7.06649574, 8.129236253, 9.306560635, 10.591630461, 12], False, 3, [1, 1, 1, 1, 1, 1, 1, 1, 1, 1, 1, 1, 1, 1, 1], False), False)  # 38
sketch2.addGeometry(Part.BSplineCurve([Vector(46.210337, 32.307692, 0), Vector(46.327075, 32.312414, 0), Vector(46.553565, 32.321573, 0), Vector(46.87685, 32.40618, 0), Vector(47.173251, 32.539019, 0), Vector(47.429457, 32.728561, 0), Vector(47.646396, 32.947322, 0), Vector(47.80651, 33.190703, 0), Vector(47.907094, 33.454036, 0), Vector(47.917729, 33.636964, 0), Vector(47.923077, 33.728966, 0)], [4, 1, 1, 1, 1, 1, 1, 1, 4], [0, 1.13588714, 2.203786484, 3.234766741, 4.283437687, 5.291419208, 6.222934724, 7.106237994, 8], False, 3, [1, 1, 1, 1, 1, 1, 1, 1, 1, 1, 1], False), False)  # 39
sketch2.addGeometry(Part.BSplineCurve([Vector(43.752404, 34.230769, 0), Vector(43.839827, 34.078806, 0), Vector(44.007426, 33.78748, 0), Vector(44.291437, 33.396047, 0), Vector(44.582391, 33.060849, 0), Vector(44.887016, 32.787812, 0), Vector(45.201608, 32.573283, 0), Vector(45.527685, 32.419966, 0), Vector(45.865477, 32.325063, 0), Vector(46.095565, 32.313473, 0), Vector(46.210337, 32.307692, 0)], [4, 1, 1, 1, 1, 1, 1, 1, 4], [0, 1.283663364, 2.460892379, 3.537111102, 4.529833553, 5.449777664, 6.316464042, 7.160231139, 8], False, 3, [1, 1, 1, 1, 1, 1, 1, 1, 1, 1, 1], False), False)  # 40
sketch2.addGeometry(Part.LineSegment(Vector(43.752404, 34.230769, 0), Vector(41.384615, 32.809495, 0)), False)  # 41
sketch2.addGeometry(Part.BSplineCurve([Vector(46.111178, 29.615385, 0), Vector(45.982888, 29.617661, 0), Vector(45.728801, 29.622168, 0), Vector(45.354315, 29.65897, 0), Vector(44.992706, 29.718363, 0), Vector(44.644383, 29.803492, 0), Vector(44.307774, 29.911362, 0), Vector(43.982868, 30.04312, 0), Vector(43.671906, 30.20081, 0), Vector(43.372535, 30.381188, 0), Vector(43.086212, 30.590631, 0), Vector(42.809315, 30.824857, 0), Vector(42.544595, 31.087468, 0), Vector(42.290781, 31.377843, 0), Vector(42.049497, 31.696804, 0), Vector(41.812844, 32.03991, 0), Vector(41.59134, 32.413527, 0), Vector(41.454507, 32.675623, 0), Vector(41.384615, 32.809495, 0)], [4, 1, 1, 1, 1, 1, 1, 1, 1, 1, 1, 1, 1, 1, 1, 1, 4], [0, 1.016823716, 2.013894106, 2.979844003, 3.91962641, 4.853723003, 5.779685073, 6.695824784, 7.614987388, 8.547259901, 9.504950863, 10.487499108, 11.500346958, 12.559593716, 13.656357062, 14.802919212, 16], False, 3, [1, 1, 1, 1, 1, 1, 1, 1, 1, 1, 1, 1, 1, 1, 1, 1, 1, 1, 1], False), False)  # 42
sketch2.addGeometry(Part.BSplineCurve([Vector(50.615385, 33.885216, 0), Vector(50.6127, 33.733723, 0), Vector(50.607431, 33.436488, 0), Vector(50.542907, 33.001528, 0), Vector(50.450899, 32.585253, 0), Vector(50.308639, 32.192192, 0), Vector(50.135253, 31.815892, 0), Vector(49.917889, 31.462217, 0), Vector(49.662624, 31.127586, 0), Vector(49.370052, 30.81798, 0), Vector(49.046432, 30.537035, 0), Vector(48.699319, 30.286931, 0), Vector(48.325318, 30.080439, 0), Vector(47.927625, 29.910407, 0), Vector(47.506454, 29.779446, 0), Vector(47.062304, 29.682653, 0), Vector(46.594498, 29.62456, 0), Vector(46.274606, 29.618487, 0), Vector(46.111178, 29.615385, 0)], [4, 1, 1, 1, 1, 1, 1, 1, 1, 1, 1, 1, 1, 1, 1, 1, 4], [0, 1.043214005, 2.046824704, 3.02475056, 3.976699089, 4.921714032, 5.875962561, 6.831408892, 7.817874052, 8.806269674, 9.781291748, 10.760897367, 11.74438705, 12.757449933, 13.795994037, 14.874007457, 16], False, 3, [1, 1, 1, 1, 1, 1, 1, 1, 1, 1, 1, 1, 1, 1, 1, 1, 1, 1, 1], False), False)  # 43
sketch2.addGeometry(Part.BSplineCurve([Vector(49.064904, 37.325721, 0), Vector(49.197331, 37.182407, 0), Vector(49.451901, 36.906907, 0), Vector(49.782754, 36.479968, 0), Vector(50.055056, 36.063189, 0), Vector(50.265714, 35.648727, 0), Vector(50.424811, 35.230603, 0), Vector(50.536977, 34.798561, 0), Vector(50.604154, 34.348087, 0), Vector(50.611612, 34.040693, 0), Vector(50.615385, 33.885216, 0)], [4, 1, 1, 1, 1, 1, 1, 1, 4], [0, 1.206664779, 2.319633467, 3.337109185, 4.282041471, 5.190008762, 6.099243693, 7.03861361, 8], False, 3, [1, 1, 1, 1, 1, 1, 1, 1, 1, 1, 1], False), False)  # 44
sketch2.addGeometry(Part.BSplineCurve([Vector(47.132812, 39.05649, 0), Vector(47.258991, 38.947289, 0), Vector(47.498452, 38.740048, 0), Vector(47.839156, 38.445903, 0), Vector(48.138579, 38.181267, 0), Vector(48.401082, 37.950113, 0), Vector(48.622685, 37.750016, 0), Vector(48.804321, 37.580018, 0), Vector(48.948207, 37.443429, 0), Vector(49.029998, 37.36093, 0), Vector(49.064904, 37.325721, 0)], [4, 1, 1, 1, 1, 1, 1, 1, 4], [0, 1.543621617, 2.929473131, 4.163658386, 5.240097082, 6.164993805, 6.925417477, 7.541396219, 8], False, 3, [1, 1, 1, 1, 1, 1, 1, 1, 1, 1, 1], False), False)  # 45
sketch2.addGeometry(Part.BSplineCurve([Vector(45.095553, 40.991587, 0), Vector(45.13005, 40.948036, 0), Vector(45.209456, 40.847789, 0), Vector(45.360868, 40.689013, 0), Vector(45.55101, 40.494499, 0), Vector(45.787199, 40.270935, 0), Vector(46.05963, 40.010281, 0), Vector(46.38093, 39.722783, 0), Vector(46.741852, 39.399538, 0), Vector(46.998386, 39.174443, 0), Vector(47.132812, 39.05649, 0)], [4, 1, 1, 1, 1, 1, 1, 1, 4], [0, 0.473873513, 1.090794244, 1.870441696, 2.795289791, 3.865433203, 5.087734844, 6.473946851, 8], False, 3, [1, 1, 1, 1, 1, 1, 1, 1, 1, 1, 1], False), False)  # 46
sketch2.addGeometry(Part.BSplineCurve([Vector(44.846154, 41.709736, 0), Vector(44.848804, 41.647301, 0), Vector(44.85414, 41.521567, 0), Vector(44.905683, 41.337289, 0), Vector(44.983372, 41.157227, 0), Vector(45.057607, 41.047615, 0), Vector(45.095553, 40.991587, 0)], [4, 1, 1, 1, 4], [0, 0.967525499, 1.948461899, 2.951351359, 4], False, 3, [1, 1, 1, 1, 1, 1, 1], False), False)  # 47
sketch2.addGeometry(Part.BSplineCurve([Vector(46.060096, 42.692308, 0), Vector(45.974644, 42.689311, 0), Vector(45.809658, 42.683525, 0), Vector(45.574457, 42.626012, 0), Vector(45.365643, 42.526753, 0), Vector(45.183419, 42.396964, 0), Vector(45.039071, 42.240597, 0), Vector(44.92382, 42.07661, 0), Vector(44.858924, 41.895604, 0), Vector(44.850382, 41.771282, 0), Vector(44.846154, 41.709736, 0)], [4, 1, 1, 1, 1, 1, 1, 1, 4], [0, 1.185010067, 2.2879431, 3.333075148, 4.379039566, 5.372662701, 6.27520591, 7.14612461, 8], False, 3, [1, 1, 1, 1, 1, 1, 1, 1, 1, 1, 1], False), False)  # 48
sketch2.addGeometry(Part.BSplineCurve([Vector(48.217548, 41.153846, 0), Vector(48.13131, 41.275493, 0), Vector(47.965746, 41.509039, 0), Vector(47.697383, 41.821763, 0), Vector(47.430232, 42.088539, 0), Vector(47.161818, 42.308254, 0), Vector(46.889762, 42.479572, 0), Vector(46.614535, 42.600868, 0), Vector(46.337699, 42.677976, 0), Vector(46.151708, 42.687578, 0), Vector(46.060096, 42.692308, 0)], [4, 1, 1, 1, 1, 1, 1, 1, 4], [0, 1.299362458, 2.494594718, 3.587462134, 4.587049575, 5.512617175, 6.380583204, 7.202344345, 8], False, 3, [1, 1, 1, 1, 1, 1, 1, 1, 1, 1, 1], False), False)  # 49
sketch2.addConstraint([
    Sketcher.Constraint("Block", 16),
    Sketcher.Constraint("Block", 17),
    Sketcher.Constraint("Block", 18),
    Sketcher.Constraint("Block", 21),
    Sketcher.Constraint("Block", 22),
    Sketcher.Constraint("Block", 23),
    Sketcher.Constraint("Block", 25),
    Sketcher.Constraint("Block", 26),
    Sketcher.Constraint("Block", 27),
    Sketcher.Constraint("Block", 28),
    Sketcher.Constraint("Block", 29),
    Sketcher.Constraint("Block", 30),
    Sketcher.Constraint("Block", 31),
    Sketcher.Constraint("Block", 32),
    Sketcher.Constraint("Block", 33),
    Sketcher.Constraint("Block", 35),
    Sketcher.Constraint("Block", 36),
    Sketcher.Constraint("Block", 37),
    Sketcher.Constraint("Block", 38),
    Sketcher.Constraint("Block", 39),
    Sketcher.Constraint("Block", 40),
    Sketcher.Constraint("Block", 42),
    Sketcher.Constraint("Block", 43),
    Sketcher.Constraint("Block", 44),
    Sketcher.Constraint("Block", 45),
    Sketcher.Constraint("Block", 46),
    Sketcher.Constraint("Block", 47),
    Sketcher.Constraint("Block", 48),
    Sketcher.Constraint("Block", 49),
    Sketcher.Constraint("Coincident", 12, 2, 13, 1),
    Sketcher.Constraint("Coincident", 13, 2, 14, 1),
    Sketcher.Constraint("Coincident", 14, 2, 15, 1),
    Sketcher.Constraint("Coincident", 15, 2, 16, 2),
    Sketcher.Constraint("Coincident", 18, 1, 12, 1),
    Sketcher.Constraint("Coincident", 19, 2, 20, 1),
    Sketcher.Constraint("Coincident", 20, 2, 21, 2),
    Sketcher.Constraint("Coincident", 23, 1, 24, 1),
    Sketcher.Constraint("Coincident", 24, 2, 19, 1),
    Sketcher.Constraint("Coincident", 34, 2, 35, 2),
    Sketcher.Constraint("Coincident", 40, 1, 41, 1),
    Sketcher.Constraint("Coincident", 41, 2, 42, 2),
    Sketcher.Constraint("Coincident", 49, 1, 34, 1),
    Sketcher.Constraint("Horizontal", 0),
    Sketcher.Constraint("Vertical", 1),
    Sketcher.Constraint("Horizontal", 2),
    Sketcher.Constraint("Vertical", 3),
    Sketcher.Constraint("Horizontal", 4),
    Sketcher.Constraint("Vertical", 5),
    Sketcher.Constraint("Horizontal", 6),
    Sketcher.Constraint("Vertical", 7),
    Sketcher.Constraint("Horizontal", 8),
    Sketcher.Constraint("Vertical", 9),
    Sketcher.Constraint("Horizontal", 10),
    Sketcher.Constraint("Vertical", 11),
    Sketcher.Constraint("Horizontal", 12),
    Sketcher.Constraint("Vertical", 13),
    Sketcher.Constraint("Horizontal", 14),
    Sketcher.Constraint("Vertical", 15),
    Sketcher.Constraint("Vertical", 19),
    Sketcher.Constraint("Horizontal", 20),
    Sketcher.Constraint("Horizontal", 24),
    Sketcher.Constraint("DistanceY", 1, 2, 1, 1, 15.0),
    Sketcher.Constraint("DistanceY", 13, 2, 13, 1, 15.0),
    Sketcher.Constraint("DistanceY", -1, 1, 0, 2, 45.0),
    Sketcher.Constraint("DistanceX", -1, 1, 12, 2, 13.5),
    Sketcher.Constraint("DistanceY", 6, 2, 24, 2, 2.5),
    Sketcher.Constraint("DistanceY", 5, 1, 5, 2, 4.038462),
    Sketcher.Constraint("DistanceX", 0, 2, 0, 1, 8.076923),
    Sketcher.Constraint("DistanceX", 2, 1, 2, 2, 8.076923),
    Sketcher.Constraint("DistanceX", 4, 2, 4, 1, 5.384615),
    Sketcher.Constraint("DistanceX", 6, 1, 6, 2, 5.384615),
    Sketcher.Constraint("DistanceX", 8, 2, 8, 1, 5.384615),
    Sketcher.Constraint("DistanceX", 20, 1, 20, 2, 0.847356),
    Sketcher.Constraint("DistanceY", 7, 1, 7, 2, 2.692308),
    Sketcher.Constraint("DistanceY", 9, 1, 9, 2, 2.884615),
    Sketcher.Constraint("DistanceX", -1, 1, 0, 2, 2.730769),
])
sketch2.setExpression("Constraints[73]", "Params.sketch2_height")
sketch2.setExpression("Constraints[74]", "Params.sketch2_height2")
pocket1 = body.newObject("PartDesign::Pocket", "Pocket")
pocket1.Profile = sketch2
pocket1.setExpression("Length", "Params.pocket1_length")

doc.recompute()
